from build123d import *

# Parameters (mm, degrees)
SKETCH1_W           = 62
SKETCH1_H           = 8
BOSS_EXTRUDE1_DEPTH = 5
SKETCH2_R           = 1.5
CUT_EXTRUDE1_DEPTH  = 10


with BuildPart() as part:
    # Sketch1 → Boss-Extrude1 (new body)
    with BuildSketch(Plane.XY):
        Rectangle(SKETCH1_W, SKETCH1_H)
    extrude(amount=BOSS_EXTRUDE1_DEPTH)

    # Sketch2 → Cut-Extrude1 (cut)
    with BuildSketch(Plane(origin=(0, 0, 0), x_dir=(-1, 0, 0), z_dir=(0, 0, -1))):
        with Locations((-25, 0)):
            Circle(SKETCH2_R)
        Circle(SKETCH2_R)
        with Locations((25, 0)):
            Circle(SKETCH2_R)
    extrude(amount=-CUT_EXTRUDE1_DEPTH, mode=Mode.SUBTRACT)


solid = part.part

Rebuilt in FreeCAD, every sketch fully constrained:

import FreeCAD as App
import Part
import Sketcher

V = App.Vector
Q = App.Units.Quantity


def add_polygon(sketch, points):
    """Adds a closed chain of lines whose ends are joined by coincident constraints."""
    first, n = sketch.GeometryCount, len(points)
    for a, b in zip(points, points[1:] + points[:1]):
        sketch.addGeometry(Part.LineSegment(App.Vector(*a, 0), App.Vector(*b, 0)), False)
    for i in range(n):
        sketch.addConstraint(Sketcher.Constraint("Coincident", first + i, 2, first + (i + 1) % n, 1))

doc = App.newDocument("Part")
body = doc.addObject("PartDesign::Body", "Body")

# Sketch on XY plane
sketch1 = doc.addObject("Sketcher::SketchObject", "Sketch")
body.addObject(sketch1)
sketch1.AttachmentSupport = (doc.XY_Plane, [""])
sketch1.MapMode = "FlatFace"
add_polygon(sketch1, [(-31, 4), (-31, -4), (31, -4), (31, 4)])  # lines 0-3
sketch1.addConstraint([
    Sketcher.Constraint("Vertical", 0),
    Sketcher.Constraint("Horizontal", 1),
    Sketcher.Constraint("Vertical", 2),
    Sketcher.Constraint("Horizontal", 3),
    Sketcher.Constraint("Symmetric", 0, 2, 2, 2, -1, 1),
    Sketcher.Constraint("DistanceX", 1, 1, 1, 2, Q("62 mm")),
    Sketcher.Constraint("DistanceY", 0, 2, 0, 1, Q("8 mm")),
])
pad1 = doc.addObject("PartDesign::Pad", "Pad")
body.addObject(pad1)
pad1.Profile = sketch1
pad1.Length = 5

# Sketch on XY plane
sketch2 = doc.addObject("Sketcher::SketchObject", "Sketch001")
body.addObject(sketch2)
sketch2.AttachmentSupport = (doc.XY_Plane, [""])
sketch2.MapMode = "FlatFace"
sketch2.addGeometry([
    Part.Circle(V(25, 0, 0), V(0, 0, 1), 1.5),
    Part.Circle(V(0, 0, 0), V(0, 0, 1), 1.5),
    Part.Circle(V(-25, 0, 0), V(0, 0, 1), 1.5),
], False)
sketch2.addConstraint([
    Sketcher.Constraint("Coincident", 1, 3, -1, 1),
    Sketcher.Constraint("Equal", 0, 1),
    Sketcher.Constraint("Equal", 1, 2),
    Sketcher.Constraint("Symmetric", 0, 3, 2, 3, -1, 1),
    Sketcher.Constraint("PointOnObject", 0, 3, -1),
    Sketcher.Constraint("Diameter", 0, Q("3 mm")),
    Sketcher.Constraint("DistanceX", -1, 1, 0, 3, Q("25 mm")),
])
pocket1 = doc.addObject("PartDesign::Pocket", "Pocket")
body.addObject(pocket1)
pocket1.Profile = sketch2
pocket1.Length = 10
pocket1.Reversed = True

doc.recompute()
